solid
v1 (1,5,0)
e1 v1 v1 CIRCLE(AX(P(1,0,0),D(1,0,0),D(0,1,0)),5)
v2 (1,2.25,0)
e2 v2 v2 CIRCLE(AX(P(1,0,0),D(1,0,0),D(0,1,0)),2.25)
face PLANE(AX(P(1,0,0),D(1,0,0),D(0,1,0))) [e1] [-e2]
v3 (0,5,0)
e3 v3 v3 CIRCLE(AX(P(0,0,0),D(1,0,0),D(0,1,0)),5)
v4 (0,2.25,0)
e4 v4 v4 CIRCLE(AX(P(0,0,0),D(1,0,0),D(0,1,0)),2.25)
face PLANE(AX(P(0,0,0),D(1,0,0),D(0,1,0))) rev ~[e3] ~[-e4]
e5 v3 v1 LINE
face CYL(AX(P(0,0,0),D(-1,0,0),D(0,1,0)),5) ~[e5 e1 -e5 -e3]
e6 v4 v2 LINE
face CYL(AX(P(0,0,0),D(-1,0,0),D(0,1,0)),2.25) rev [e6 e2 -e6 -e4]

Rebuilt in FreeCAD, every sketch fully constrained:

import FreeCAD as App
import Part
import Sketcher
from FreeCAD import Vector

doc = App.newDocument("Part")
body = doc.addObject("PartDesign::Body", "Body")

# Sketch on YZ plane
sketch1 = doc.addObject("Sketcher::SketchObject", "Sketch")
body.addObject(sketch1)
sketch1.AttachmentSupport = (doc.YZ_Plane, [""])
sketch1.MapMode = "FlatFace"
sketch1.addGeometry([
    Part.Circle(Vector(0, 0, 0), Vector(0, 0, 1), 5),
    Part.Circle(Vector(0, 0, 0), Vector(0, 0, 1), 2.2),
], False)
sketch1.addConstraint([
    Sketcher.Constraint("Coincident", 0, 3, -1, 1),
    Sketcher.Constraint("Coincident", 1, 3, -1, 1),
    Sketcher.Constraint("Diameter", 0, 10.0),
    Sketcher.Constraint("Diameter", 1, 4.5),
])
pad1 = doc.addObject("PartDesign::Pad", "Pad")
body.addObject(pad1)
pad1.Profile = sketch1
pad1.Length = 1

doc.recompute()
